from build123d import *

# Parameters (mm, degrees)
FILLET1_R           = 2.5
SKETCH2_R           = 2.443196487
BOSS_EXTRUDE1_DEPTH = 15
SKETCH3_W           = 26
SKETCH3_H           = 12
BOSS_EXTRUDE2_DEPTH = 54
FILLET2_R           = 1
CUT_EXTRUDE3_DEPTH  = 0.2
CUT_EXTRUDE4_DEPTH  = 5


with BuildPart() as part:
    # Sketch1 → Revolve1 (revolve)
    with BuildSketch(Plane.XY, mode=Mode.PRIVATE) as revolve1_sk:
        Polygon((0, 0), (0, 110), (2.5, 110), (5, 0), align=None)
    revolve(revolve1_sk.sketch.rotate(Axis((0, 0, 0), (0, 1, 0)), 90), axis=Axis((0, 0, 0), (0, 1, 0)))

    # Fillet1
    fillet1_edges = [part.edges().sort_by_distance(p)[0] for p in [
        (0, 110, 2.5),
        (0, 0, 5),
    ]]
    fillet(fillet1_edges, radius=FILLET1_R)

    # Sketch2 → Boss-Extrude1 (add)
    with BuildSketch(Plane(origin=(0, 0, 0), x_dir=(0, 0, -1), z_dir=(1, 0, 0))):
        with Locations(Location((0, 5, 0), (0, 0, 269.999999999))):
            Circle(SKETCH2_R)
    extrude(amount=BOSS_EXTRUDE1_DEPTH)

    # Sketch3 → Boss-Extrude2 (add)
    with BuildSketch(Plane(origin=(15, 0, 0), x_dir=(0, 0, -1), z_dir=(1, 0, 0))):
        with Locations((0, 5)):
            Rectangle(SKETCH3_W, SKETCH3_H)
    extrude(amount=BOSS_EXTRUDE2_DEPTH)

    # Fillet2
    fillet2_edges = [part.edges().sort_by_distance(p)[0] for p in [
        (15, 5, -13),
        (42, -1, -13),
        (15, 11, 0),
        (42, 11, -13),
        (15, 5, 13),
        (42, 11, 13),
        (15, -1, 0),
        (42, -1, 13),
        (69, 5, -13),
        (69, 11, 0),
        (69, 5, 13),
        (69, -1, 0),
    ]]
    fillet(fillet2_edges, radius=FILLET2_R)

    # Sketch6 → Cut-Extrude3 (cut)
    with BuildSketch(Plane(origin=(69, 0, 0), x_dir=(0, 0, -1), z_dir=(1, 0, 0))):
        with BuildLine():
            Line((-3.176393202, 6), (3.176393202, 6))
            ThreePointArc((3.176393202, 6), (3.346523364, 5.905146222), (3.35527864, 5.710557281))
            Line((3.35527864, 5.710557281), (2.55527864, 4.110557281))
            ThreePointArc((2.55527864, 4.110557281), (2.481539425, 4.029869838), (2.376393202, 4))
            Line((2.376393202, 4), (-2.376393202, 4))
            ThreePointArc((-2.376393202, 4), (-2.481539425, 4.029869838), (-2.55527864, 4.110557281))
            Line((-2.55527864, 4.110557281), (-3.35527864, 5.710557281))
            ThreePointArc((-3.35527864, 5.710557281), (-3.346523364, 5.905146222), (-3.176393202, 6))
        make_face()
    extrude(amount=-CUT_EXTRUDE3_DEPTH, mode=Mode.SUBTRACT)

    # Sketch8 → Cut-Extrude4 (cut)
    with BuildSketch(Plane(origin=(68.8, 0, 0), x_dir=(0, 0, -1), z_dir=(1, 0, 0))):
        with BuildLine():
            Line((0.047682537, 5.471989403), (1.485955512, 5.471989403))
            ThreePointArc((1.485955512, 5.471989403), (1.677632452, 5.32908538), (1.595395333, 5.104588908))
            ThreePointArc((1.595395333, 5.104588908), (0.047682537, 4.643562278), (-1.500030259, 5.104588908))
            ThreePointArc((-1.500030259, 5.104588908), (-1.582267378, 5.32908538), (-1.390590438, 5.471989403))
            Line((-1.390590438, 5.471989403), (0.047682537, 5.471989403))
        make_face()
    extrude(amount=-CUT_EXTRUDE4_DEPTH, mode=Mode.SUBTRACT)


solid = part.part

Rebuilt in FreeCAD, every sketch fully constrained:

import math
import FreeCAD as App
import Part
import Sketcher
from FreeCAD import Vector


def edges_at(feature, points):
    """Names of the edges that pass closest to the given points."""
    edges = feature.Shape.Edges
    near = lambda p: min(range(len(edges)), key=lambda i: edges[i].distToShape(Part.Vertex(*p))[0])
    return sorted({f"Edge{near(p) + 1}" for p in points})


def add_polygon(sketch, points):
    """Adds a closed chain of lines whose ends are joined by coincident constraints."""
    first, n = sketch.GeometryCount, len(points)
    for a, b in zip(points, points[1:] + points[:1]):
        sketch.addGeometry(Part.LineSegment(App.Vector(*a, 0), App.Vector(*b, 0)), False)
    for i in range(n):
        sketch.addConstraint(Sketcher.Constraint("Coincident", first + i, 2, first + (i + 1) % n, 1))

doc = App.newDocument("Part")
params = doc.addObject("Spreadsheet::Sheet", "Params")
for row, (alias, value) in enumerate([
    ("sketch1_width", "5 mm"),
    ("sketch1_height", "110 mm"),
    ("sketch1_width2", "2.5 mm"),
    ("revolution_angle", "360 deg"),
    ("fillet_radius", "2.5 mm"),
    ("pad1_length", "15 mm"),
    ("sketch3_width", "12 mm"),
    ("sketch3_height", "26 mm"),
    ("pad2_length", "54 mm"),
    ("fillet2_radius", "1 mm"),
    ("sketch4_radius", "0.2 mm"),
    ("pocket1_length", "0.2 mm"),
    ("sketch5_radius", "0.2 mm"),
    ("pocket2_length", "5 mm"),
], start=1):
    params.set(f"A{row}", alias)
    params.set(f"B{row}", "=" + value)
    params.setAlias(f"B{row}", alias)

body = doc.addObject("PartDesign::Body", "Body")

# Sketch on XY plane
sketch1 = body.newObject("Sketcher::SketchObject", "Sketch")
sketch1.AttachmentSupport = (doc.getObject("XY_Plane"), [""])
sketch1.MapMode = "FlatFace"
add_polygon(sketch1, [(0, 110), (0, 0), (5, 0), (2.5, 110)])  # lines 0-3
sketch1.addConstraint([
    Sketcher.Constraint("Vertical", 0),
    Sketcher.Constraint("Horizontal", 1),
    Sketcher.Constraint("Horizontal", 3),
    Sketcher.Constraint("Coincident", 0, 2, -1, 1),
    Sketcher.Constraint("DistanceX", 1, 1, 1, 2, 5.0),
    Sketcher.Constraint("DistanceY", 0, 2, 0, 1, 110.0),
    Sketcher.Constraint("DistanceX", 3, 2, 3, 1, 2.5),
])
sketch1.setExpression("Constraints[8]", "Params.sketch1_width")
sketch1.setExpression("Constraints[9]", "Params.sketch1_height")
sketch1.setExpression("Constraints[10]", "Params.sketch1_width2")
revolution = body.newObject("PartDesign::Revolution", "Revolution")
revolution.Profile = sketch1
revolution.ReferenceAxis = (sketch1, ["V_Axis"])
revolution.setExpression("Angle", "Params.revolution_angle")
doc.recompute()

fillet = body.newObject("PartDesign::Fillet", "Fillet")
fillet.Base = (revolution, edges_at(revolution, [(0, 110, 2.5), (0, 0, 5)]))
fillet.setExpression("Radius", "Params.fillet_radius")

# Sketch on YZ plane
sketch2 = body.newObject("Sketcher::SketchObject", "Sketch001")
sketch2.AttachmentSupport = (doc.getObject("YZ_Plane"), [""])
sketch2.MapMode = "FlatFace"
sketch2.addGeometry(Part.Circle(Vector(5, 0, 0), Vector(0, 0, 1), 2.443196), False)
sketch2.addConstraint([
    Sketcher.Constraint("PointOnObject", 0, 3, -1),
    Sketcher.Constraint("DistanceX", -1, 1, 0, 3, 5.0),
    Sketcher.Constraint("Diameter", 0, 4.886393),
])
pad1 = body.newObject("PartDesign::Pad", "Pad")
pad1.Profile = sketch2
pad1.setExpression("Length", "Params.pad1_length")

# Sketch on YZ plane
sketch3 = body.newObject("Sketcher::SketchObject", "Sketch002")
sketch3.AttachmentSupport = (doc.getObject("YZ_Plane"), [""])
sketch3.MapMode = "FlatFace"
sketch3.AttachmentOffset = App.Placement(Vector(0, 0, 15), App.Rotation())
add_polygon(sketch3, [(11, 13), (-1, 13), (-1, -13), (11, -13)])  # lines 0-3
sketch3.addConstraint([
    Sketcher.Constraint("Horizontal", 0),
    Sketcher.Constraint("Vertical", 1),
    Sketcher.Constraint("Horizontal", 2),
    Sketcher.Constraint("Vertical", 3),
    Sketcher.Constraint("DistanceX", 0, 2, 0, 1, 12.0),
    Sketcher.Constraint("DistanceY", 1, 2, 1, 1, 26.0),
    Sketcher.Constraint("DistanceX", 0, 2, -1, 1, 1.0),
    Sketcher.Constraint("DistanceY", -1, 1, 0, 2, 13.0),
])
sketch3.setExpression("Constraints[8]", "Params.sketch3_width")
sketch3.setExpression("Constraints[9]", "Params.sketch3_height")
pad2 = body.newObject("PartDesign::Pad", "Pad001")
pad2.Profile = sketch3
pad2.setExpression("Length", "Params.pad2_length")
doc.recompute()

fillet2 = body.newObject("PartDesign::Fillet", "Fillet001")
fillet2.Base = (pad2, edges_at(pad2, [
    (15, 5, -13),
    (42, -1, -13),
    (15, 11, 0),
    (42, 11, -13),
    (15, 5, 13),
    (42, 11, 13),
    (15, -1, 0),
    (42, -1, 13),
    (69, 5, -13),
    (69, 11, 0),
    (69, 5, 13),
    (69, -1, 0),
]))
fillet2.setExpression("Radius", "Params.fillet2_radius")

# Sketch on YZ plane
sketch4 = body.newObject("Sketcher::SketchObject", "Sketch003")
sketch4.AttachmentSupport = (doc.getObject("YZ_Plane"), [""])
sketch4.MapMode = "FlatFace"
sketch4.AttachmentOffset = App.Placement(Vector(0, 0, 69), App.Rotation())
sketch4.addGeometry([
    Part.LineSegment(Vector(6, -3.176393, 0), Vector(6, 3.176393, 0)),  # 0
    Part.ArcOfCircle(Part.Circle(Vector(5.8, 3.176393, 0), Vector(0, 0, 1), 0.2), math.radians(0), math.radians(116.565051)),  # 1
    Part.LineSegment(Vector(5.710557, 3.355279, 0), Vector(4.110557, 2.555279, 0)),  # 2
    Part.ArcOfCircle(Part.Circle(Vector(4.2, 2.376393, 0), Vector(0, 0, 1), 0.2), math.radians(116.56505), math.radians(180.000001)),  # 3
    Part.LineSegment(Vector(4, 2.376393, 0), Vector(4, -2.376393, 0)),  # 4
    Part.ArcOfCircle(Part.Circle(Vector(4.2, -2.376393, 0), Vector(0, 0, 1), 0.2), math.radians(179.999999), math.radians(243.43495)),  # 5
    Part.LineSegment(Vector(4.110557, -2.555279, 0), Vector(5.710557, -3.355279, 0)),  # 6
    Part.ArcOfCircle(Part.Circle(Vector(5.8, -3.176393, 0), Vector(0, 0, 1), 0.2), math.radians(-116.565051), math.radians(0)),  # 7
], False)
sketch4.addConstraint([
    Sketcher.Constraint("Tangent", 0, 2, 1, 1),
    Sketcher.Constraint("Tangent", 1, 2, 2, 1),
    Sketcher.Constraint("Tangent", 2, 2, 3, 1),
    Sketcher.Constraint("Tangent", 3, 2, 4, 1),
    Sketcher.Constraint("Tangent", 4, 2, 5, 1),
    Sketcher.Constraint("Tangent", 5, 2, 6, 1),
    Sketcher.Constraint("Tangent", 6, 2, 7, 1),
    Sketcher.Constraint("Tangent", 7, 2, 0, 1),
    Sketcher.Constraint("Vertical", 0),
    Sketcher.Constraint("Vertical", 4),
    Sketcher.Constraint("Equal", 1, 3),
    Sketcher.Constraint("Equal", 3, 5),
    Sketcher.Constraint("Equal", 5, 7),
    Sketcher.Constraint("Symmetric", 2, 2, 5, 2, -1),
    Sketcher.Constraint("Radius", 1, 0.2),
    Sketcher.Constraint("DistanceX", -1, 1, 0, 2, 6.0),
    Sketcher.Constraint("DistanceX", -1, 1, 3, 2, 4.0),
    Sketcher.Constraint("DistanceY", 3, 3, 1, 3, 0.8),
    Sketcher.Constraint("DistanceY", 0, 1, 0, 2, 6.352786),
])
sketch4.setExpression("Constraints[14]", "Params.sketch4_radius")
pocket1 = body.newObject("PartDesign::Pocket", "Pocket")
pocket1.Profile = sketch4
pocket1.setExpression("Length", "Params.pocket1_length")

# Sketch on YZ plane
sketch5 = body.newObject("Sketcher::SketchObject", "Sketch004")
sketch5.AttachmentSupport = (doc.getObject("YZ_Plane"), [""])
sketch5.MapMode = "FlatFace"
sketch5.AttachmentOffset = App.Placement(Vector(0, 0, 68.8), App.Rotation())
sketch5.addGeometry([
    Part.ArcOfCircle(Part.Circle(Vector(5.271989, -1.485956, 0), Vector(0, 0, 1), 0.2), math.radians(-146.824929), math.radians(0)),
    Part.LineSegment(Vector(5.471989, -1.485956, 0), Vector(5.471989, 1.39059, 0)),
    Part.ArcOfCircle(Part.Circle(Vector(5.271989, 1.39059, 0), Vector(0, 0, 1), 0.2), math.radians(0), math.radians(146.824929)),
    Part.ArcOfCircle(Part.Circle(Vector(7.471989, -0.047683, 0), Vector(0, 0, 1), 2.828427), math.radians(146.824929), math.radians(213.175071)),
], False)
sketch5.addConstraint([
    Sketcher.Constraint("Tangent", 0, 2, 1, 1),
    Sketcher.Constraint("Tangent", 1, 2, 2, 1),
    Sketcher.Constraint("Tangent", 2, 2, 3, 1),
    Sketcher.Constraint("Tangent", 3, 2, 0, 1),
    Sketcher.Constraint("Vertical", 1),
    Sketcher.Constraint("Equal", 0, 2),
    Sketcher.Constraint("Radius", 0, 0.2),
    Sketcher.Constraint("DistanceX", 0, 2, 3, 3, 2.0),
    Sketcher.Constraint("Radius", 3, 2.828427),
    Sketcher.Constraint("DistanceX", -1, 1, 0, 3, 5.271989),
    Sketcher.Constraint("DistanceY", -1, 1, 2, 3, 1.39059),
])
sketch5.setExpression("Constraints[6]", "Params.sketch5_radius")
pocket2 = body.newObject("PartDesign::Pocket", "Pocket001")
pocket2.Profile = sketch5
pocket2.setExpression("Length", "Params.pocket2_length")

doc.recompute()
